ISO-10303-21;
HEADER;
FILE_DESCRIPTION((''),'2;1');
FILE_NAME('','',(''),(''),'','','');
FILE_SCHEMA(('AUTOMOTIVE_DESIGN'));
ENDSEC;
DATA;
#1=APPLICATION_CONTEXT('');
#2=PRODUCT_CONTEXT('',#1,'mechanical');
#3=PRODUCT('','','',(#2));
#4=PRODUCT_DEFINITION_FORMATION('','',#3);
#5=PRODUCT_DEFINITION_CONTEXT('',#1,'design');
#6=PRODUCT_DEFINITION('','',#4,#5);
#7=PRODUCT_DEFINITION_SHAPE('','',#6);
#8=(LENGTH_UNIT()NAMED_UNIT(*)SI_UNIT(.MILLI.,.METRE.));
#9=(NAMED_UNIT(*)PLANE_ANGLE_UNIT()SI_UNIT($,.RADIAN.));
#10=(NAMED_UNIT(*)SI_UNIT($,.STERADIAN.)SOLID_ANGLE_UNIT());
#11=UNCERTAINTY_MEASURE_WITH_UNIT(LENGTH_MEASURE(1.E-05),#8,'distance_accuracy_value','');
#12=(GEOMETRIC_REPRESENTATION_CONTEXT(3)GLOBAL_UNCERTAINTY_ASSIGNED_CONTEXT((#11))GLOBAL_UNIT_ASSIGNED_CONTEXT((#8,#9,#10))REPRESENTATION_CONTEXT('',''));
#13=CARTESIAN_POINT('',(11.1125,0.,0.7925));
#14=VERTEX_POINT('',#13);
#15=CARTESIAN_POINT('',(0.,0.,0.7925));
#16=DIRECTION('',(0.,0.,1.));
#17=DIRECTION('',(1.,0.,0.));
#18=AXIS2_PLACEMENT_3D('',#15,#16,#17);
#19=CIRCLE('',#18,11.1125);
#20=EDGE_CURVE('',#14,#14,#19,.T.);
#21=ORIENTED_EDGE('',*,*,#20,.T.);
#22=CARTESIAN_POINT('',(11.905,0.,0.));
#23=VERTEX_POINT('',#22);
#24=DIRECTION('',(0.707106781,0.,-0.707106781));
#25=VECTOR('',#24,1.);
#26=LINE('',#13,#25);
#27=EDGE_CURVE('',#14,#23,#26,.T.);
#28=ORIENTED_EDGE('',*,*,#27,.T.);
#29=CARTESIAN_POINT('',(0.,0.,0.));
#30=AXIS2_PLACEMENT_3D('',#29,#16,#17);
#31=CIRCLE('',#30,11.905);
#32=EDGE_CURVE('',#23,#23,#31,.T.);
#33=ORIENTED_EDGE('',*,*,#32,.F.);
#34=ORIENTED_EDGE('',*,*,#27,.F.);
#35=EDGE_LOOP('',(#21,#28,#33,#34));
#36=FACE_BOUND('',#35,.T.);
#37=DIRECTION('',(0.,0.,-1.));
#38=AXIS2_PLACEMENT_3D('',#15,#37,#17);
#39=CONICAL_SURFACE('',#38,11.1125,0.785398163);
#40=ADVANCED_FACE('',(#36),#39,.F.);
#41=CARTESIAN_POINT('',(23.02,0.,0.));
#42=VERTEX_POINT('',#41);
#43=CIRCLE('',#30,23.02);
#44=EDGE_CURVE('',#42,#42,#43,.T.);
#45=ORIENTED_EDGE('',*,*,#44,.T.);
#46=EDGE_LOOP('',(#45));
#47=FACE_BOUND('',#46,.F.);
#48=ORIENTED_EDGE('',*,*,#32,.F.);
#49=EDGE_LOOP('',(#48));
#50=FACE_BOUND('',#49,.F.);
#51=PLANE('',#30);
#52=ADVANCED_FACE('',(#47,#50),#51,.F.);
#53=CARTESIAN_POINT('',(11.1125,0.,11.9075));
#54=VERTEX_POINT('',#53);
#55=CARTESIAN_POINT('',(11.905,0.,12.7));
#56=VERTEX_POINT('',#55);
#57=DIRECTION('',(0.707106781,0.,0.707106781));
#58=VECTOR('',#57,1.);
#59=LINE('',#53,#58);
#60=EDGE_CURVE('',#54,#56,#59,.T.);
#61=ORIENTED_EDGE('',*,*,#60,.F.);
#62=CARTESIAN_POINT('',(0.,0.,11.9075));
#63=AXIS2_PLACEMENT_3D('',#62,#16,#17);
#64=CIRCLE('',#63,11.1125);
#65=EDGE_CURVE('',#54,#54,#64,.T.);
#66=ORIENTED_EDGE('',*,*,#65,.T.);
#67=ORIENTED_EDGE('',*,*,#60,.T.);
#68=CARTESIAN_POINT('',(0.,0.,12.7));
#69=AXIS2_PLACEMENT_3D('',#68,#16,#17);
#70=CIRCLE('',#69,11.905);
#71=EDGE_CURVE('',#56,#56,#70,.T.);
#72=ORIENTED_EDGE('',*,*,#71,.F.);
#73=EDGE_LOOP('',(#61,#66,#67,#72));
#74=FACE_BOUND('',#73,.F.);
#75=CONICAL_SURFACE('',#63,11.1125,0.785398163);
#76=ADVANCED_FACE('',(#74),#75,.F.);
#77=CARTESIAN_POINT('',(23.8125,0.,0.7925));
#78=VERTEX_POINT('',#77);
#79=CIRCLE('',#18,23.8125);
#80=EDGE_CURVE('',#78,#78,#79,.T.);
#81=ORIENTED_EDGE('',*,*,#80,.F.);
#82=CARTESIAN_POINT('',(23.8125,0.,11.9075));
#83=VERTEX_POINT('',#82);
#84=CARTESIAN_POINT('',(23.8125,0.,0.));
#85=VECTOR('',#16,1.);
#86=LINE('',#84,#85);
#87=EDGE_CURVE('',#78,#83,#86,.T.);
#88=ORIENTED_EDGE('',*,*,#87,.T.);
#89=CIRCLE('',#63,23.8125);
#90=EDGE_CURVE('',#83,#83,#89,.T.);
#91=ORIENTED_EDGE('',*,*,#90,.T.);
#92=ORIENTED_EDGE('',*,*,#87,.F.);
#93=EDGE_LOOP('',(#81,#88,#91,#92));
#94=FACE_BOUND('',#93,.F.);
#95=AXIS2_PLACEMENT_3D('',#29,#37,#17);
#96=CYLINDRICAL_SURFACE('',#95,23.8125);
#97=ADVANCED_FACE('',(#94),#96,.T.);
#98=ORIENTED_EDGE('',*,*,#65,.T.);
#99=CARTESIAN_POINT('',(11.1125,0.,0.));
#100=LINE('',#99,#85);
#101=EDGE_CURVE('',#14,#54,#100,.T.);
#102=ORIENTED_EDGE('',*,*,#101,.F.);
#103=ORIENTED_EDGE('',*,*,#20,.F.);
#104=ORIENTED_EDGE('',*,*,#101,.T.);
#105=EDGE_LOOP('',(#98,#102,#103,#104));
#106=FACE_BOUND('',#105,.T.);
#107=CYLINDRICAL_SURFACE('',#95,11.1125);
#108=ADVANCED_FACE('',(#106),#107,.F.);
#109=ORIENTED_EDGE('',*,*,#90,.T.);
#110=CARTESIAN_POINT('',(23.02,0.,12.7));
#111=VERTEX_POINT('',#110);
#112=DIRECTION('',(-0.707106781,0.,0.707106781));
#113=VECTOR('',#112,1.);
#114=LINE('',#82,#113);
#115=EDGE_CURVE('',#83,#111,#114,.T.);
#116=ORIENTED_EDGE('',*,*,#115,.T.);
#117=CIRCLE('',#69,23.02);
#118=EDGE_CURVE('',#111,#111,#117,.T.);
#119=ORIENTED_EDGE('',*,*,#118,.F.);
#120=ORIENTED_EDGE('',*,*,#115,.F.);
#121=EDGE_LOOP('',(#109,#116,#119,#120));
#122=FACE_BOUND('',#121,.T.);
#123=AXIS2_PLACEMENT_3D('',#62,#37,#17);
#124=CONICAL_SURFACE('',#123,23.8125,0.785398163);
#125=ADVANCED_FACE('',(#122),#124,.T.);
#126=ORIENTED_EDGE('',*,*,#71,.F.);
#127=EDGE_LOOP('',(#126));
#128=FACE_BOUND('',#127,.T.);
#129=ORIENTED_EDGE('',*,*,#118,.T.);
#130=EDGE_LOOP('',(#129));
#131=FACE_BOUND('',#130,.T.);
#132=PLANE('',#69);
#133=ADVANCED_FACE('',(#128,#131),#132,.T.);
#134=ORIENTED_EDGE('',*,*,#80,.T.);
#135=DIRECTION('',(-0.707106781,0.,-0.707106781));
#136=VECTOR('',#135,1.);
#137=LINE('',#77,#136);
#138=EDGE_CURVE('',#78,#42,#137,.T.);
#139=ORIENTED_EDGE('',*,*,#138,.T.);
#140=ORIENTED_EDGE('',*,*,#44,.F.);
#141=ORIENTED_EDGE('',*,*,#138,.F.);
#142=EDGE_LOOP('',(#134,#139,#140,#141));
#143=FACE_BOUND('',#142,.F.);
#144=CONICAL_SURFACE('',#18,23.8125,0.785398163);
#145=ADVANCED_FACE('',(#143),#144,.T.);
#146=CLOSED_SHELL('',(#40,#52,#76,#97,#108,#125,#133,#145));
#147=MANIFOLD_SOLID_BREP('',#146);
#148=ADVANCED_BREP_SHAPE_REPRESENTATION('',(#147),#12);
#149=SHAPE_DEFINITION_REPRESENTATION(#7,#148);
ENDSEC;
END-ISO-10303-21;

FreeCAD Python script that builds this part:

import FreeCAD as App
import Part
import Sketcher
Q = App.Units.Quantity


def edges_at(feature, points):
    """Names of the edges that pass closest to the given points."""
    edges = feature.Shape.Edges
    near = lambda p: min(range(len(edges)), key=lambda i: edges[i].distToShape(Part.Vertex(*p))[0])
    return sorted({f"Edge{near(p) + 1}" for p in points})

doc = App.newDocument("Part")
params = doc.addObject("Spreadsheet::Sheet", "Params")
for row, (alias, value) in enumerate([
    ("sketch1_diameter", "1.875 in"),
    ("sketch1_diameter2", "0.875 in"),
    ("pad1_length", "0.5 in"),
    ("chamfer_size", "0.0312008 in"),
], start=1):
    params.set(f"A{row}", alias)
    params.set(f"B{row}", "=" + value)
    params.setAlias(f"B{row}", alias)

body = doc.addObject("PartDesign::Body", "Body")

# Sketch on XY plane
sketch1 = body.newObject("Sketcher::SketchObject", "Sketch")
sketch1.AttachmentSupport = (doc.getObject("XY_Plane"), [""])
sketch1.MapMode = "FlatFace"
sketch1.addGeometry([
    Part.Circle(App.Vector(0, 0, 0), App.Vector(0, 0, 1), 23.8125),
    Part.Circle(App.Vector(0, 0, 0), App.Vector(0, 0, 1), 11.1125),
], False)
sketch1.addConstraint([
    Sketcher.Constraint("Coincident", 0, 3, -1, 1),
    Sketcher.Constraint("Coincident", 1, 3, -1, 1),
    Sketcher.Constraint("Diameter", 0, Q("1.875 in")),
    Sketcher.Constraint("Diameter", 1, Q("0.875 in")),
])
sketch1.setExpression("Constraints[2]", "Params.sketch1_diameter")
sketch1.setExpression("Constraints[3]", "Params.sketch1_diameter2")
pad1 = body.newObject("PartDesign::Pad", "Pad")
pad1.Profile = sketch1
pad1.setExpression("Length", "Params.pad1_length")
doc.recompute()

chamfer = body.newObject("PartDesign::Chamfer", "Chamfer")
chamfer.Base = (pad1, edges_at(pad1, [
    (-11.113, 0, 12.7),
    (-11.113, 0, 0),
    (-23.812, 0, 12.7),
    (-23.812, 0, 0),
]))
chamfer.setExpression("Size", "Params.chamfer_size")

doc.recompute()
